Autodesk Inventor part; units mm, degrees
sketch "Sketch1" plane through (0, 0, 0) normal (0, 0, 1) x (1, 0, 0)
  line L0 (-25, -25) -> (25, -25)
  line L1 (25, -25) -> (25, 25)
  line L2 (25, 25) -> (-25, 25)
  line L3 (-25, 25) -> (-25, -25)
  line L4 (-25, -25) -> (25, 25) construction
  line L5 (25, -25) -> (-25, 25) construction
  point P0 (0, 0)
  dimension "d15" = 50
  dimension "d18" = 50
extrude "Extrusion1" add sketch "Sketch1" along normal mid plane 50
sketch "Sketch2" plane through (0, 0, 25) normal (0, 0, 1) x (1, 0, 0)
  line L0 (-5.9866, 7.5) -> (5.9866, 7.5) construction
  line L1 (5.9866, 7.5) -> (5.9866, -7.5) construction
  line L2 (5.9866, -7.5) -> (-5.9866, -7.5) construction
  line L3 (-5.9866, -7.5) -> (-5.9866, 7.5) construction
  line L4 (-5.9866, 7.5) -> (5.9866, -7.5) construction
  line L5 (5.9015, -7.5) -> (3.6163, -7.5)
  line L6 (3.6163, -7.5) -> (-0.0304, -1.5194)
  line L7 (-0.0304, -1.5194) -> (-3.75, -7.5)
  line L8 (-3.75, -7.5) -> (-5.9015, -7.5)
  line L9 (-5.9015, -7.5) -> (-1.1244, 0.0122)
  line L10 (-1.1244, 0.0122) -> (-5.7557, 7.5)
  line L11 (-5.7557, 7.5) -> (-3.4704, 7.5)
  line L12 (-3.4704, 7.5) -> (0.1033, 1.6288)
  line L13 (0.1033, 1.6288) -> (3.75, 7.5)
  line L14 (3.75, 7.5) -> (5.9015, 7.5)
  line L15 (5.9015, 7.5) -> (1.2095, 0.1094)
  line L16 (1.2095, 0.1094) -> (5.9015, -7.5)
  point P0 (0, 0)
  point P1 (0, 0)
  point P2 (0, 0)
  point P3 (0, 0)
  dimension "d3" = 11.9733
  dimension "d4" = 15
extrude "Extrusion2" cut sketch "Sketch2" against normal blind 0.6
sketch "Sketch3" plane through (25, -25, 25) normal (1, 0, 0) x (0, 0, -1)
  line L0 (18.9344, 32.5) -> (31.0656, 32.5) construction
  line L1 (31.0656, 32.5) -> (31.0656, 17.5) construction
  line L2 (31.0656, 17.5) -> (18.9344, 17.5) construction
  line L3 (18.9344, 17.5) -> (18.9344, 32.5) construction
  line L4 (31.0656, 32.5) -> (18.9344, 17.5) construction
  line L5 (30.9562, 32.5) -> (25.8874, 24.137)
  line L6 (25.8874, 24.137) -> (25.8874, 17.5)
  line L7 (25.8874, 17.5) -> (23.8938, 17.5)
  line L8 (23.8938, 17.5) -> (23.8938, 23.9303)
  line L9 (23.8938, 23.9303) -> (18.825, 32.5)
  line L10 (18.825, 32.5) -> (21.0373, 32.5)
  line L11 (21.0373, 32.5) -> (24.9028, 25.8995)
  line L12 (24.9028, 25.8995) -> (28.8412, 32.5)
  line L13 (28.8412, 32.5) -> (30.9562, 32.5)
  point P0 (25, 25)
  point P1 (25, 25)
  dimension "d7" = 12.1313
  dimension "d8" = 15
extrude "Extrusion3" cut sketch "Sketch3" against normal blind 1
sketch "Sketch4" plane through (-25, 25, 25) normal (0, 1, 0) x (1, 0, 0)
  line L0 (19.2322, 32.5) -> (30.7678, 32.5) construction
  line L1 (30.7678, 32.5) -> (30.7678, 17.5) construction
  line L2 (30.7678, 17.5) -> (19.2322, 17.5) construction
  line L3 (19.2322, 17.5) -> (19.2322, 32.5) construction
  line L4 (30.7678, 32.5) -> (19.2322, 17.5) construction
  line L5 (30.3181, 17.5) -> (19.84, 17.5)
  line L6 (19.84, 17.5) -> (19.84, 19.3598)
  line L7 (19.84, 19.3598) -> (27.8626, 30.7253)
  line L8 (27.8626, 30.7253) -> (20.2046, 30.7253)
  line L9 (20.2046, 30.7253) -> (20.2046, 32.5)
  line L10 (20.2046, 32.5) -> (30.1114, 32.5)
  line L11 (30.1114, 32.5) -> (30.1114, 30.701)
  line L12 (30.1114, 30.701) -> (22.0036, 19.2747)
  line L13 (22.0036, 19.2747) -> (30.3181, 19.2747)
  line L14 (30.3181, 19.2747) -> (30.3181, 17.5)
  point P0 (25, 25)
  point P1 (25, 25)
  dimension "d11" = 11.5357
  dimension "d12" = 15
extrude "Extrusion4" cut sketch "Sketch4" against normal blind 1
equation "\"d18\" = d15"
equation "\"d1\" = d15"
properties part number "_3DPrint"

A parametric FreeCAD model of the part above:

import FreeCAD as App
import Part
import Sketcher

V = App.Vector
Q = App.Units.Quantity


def add_polygon(sketch, points):
    """Adds a closed chain of lines whose ends are joined by coincident constraints."""
    first, n = sketch.GeometryCount, len(points)
    for a, b in zip(points, points[1:] + points[:1]):
        sketch.addGeometry(Part.LineSegment(App.Vector(*a, 0), App.Vector(*b, 0)), False)
    for i in range(n):
        sketch.addConstraint(Sketcher.Constraint("Coincident", first + i, 2, first + (i + 1) % n, 1))

doc = App.newDocument("Part")
body = doc.addObject("PartDesign::Body", "Body")

# Sketch on XY plane
sketch1 = body.newObject("Sketcher::SketchObject", "Sketch")
sketch1.AttachmentSupport = (doc.getObject("XY_Plane"), [""])
sketch1.MapMode = "FlatFace"
add_polygon(sketch1, [(-25, 25), (-25, -25), (25, -25), (25, 25)])  # lines 0-3
sketch1.addConstraint([
    Sketcher.Constraint("Vertical", 0),
    Sketcher.Constraint("Horizontal", 1),
    Sketcher.Constraint("Vertical", 2),
    Sketcher.Constraint("Horizontal", 3),
    Sketcher.Constraint("Symmetric", 0, 2, 2, 2, -1, 1),
    Sketcher.Constraint("Equal", 3, 0),
    Sketcher.Constraint("DistanceX", 1, 1, 1, 2, Q("50 mm")),
])
pad1 = body.newObject("PartDesign::Pad", "Pad")
pad1.Profile = sketch1
pad1.Length = 50
pad1.Midplane = True

# Sketch on XY plane
sketch2 = body.newObject("Sketcher::SketchObject", "Sketch001")
sketch2.AttachmentSupport = (doc.getObject("XY_Plane"), [""])
sketch2.MapMode = "FlatFace"
sketch2.AttachmentOffset = App.Placement(V(0, 0, 25), App.Rotation())
add_polygon(sketch2, [(3.6, -7.5), (5.9, -7.5), (1.2, 0.1), (5.9, 7.5), (3.8, 7.5), (0.1, 1.6), (-3.5, 7.5), (-5.8, 7.5), (-1.1, 0), (-5.9, -7.5), (-3.8, -7.5), (0, -1.5)])  # lines 0-11
sketch2.addConstraint([
    Sketcher.Constraint("Horizontal", 0),
    Sketcher.Constraint("Horizontal", 3),
    Sketcher.Constraint("Horizontal", 6),
    Sketcher.Constraint("Horizontal", 9),
    Sketcher.Constraint("Symmetric", 2, 2, 8, 2, -1, 1),
    Sketcher.Constraint("Symmetric", 0, 2, 8, 2, -2),
    Sketcher.Constraint("Horizontal", 3, 2, 5, 2),
    Sketcher.Constraint("Equal", 0, 6),
    Sketcher.Constraint("Equal", 3, 9),
    Sketcher.Constraint("DistanceY", 0, 2, 2, 2, Q("15 mm")),
    Sketcher.Constraint("Angle", 2, Q("57.5901 deg")),
    Sketcher.Constraint("Angle", 10, Q("58.1207 deg")),
    Sketcher.Constraint("DistanceX", -1, 1, 3, 2, Q("3.75 mm")),
    Sketcher.Constraint("DistanceX", 5, 2, 1, 2, Q("4.68 mm")),
    Sketcher.Constraint("DistanceX", 10, 2, 1, 2, Q("1.24 mm")),
    Sketcher.Constraint("Distance", 10, Q("7.043 mm")),
    Sketcher.Constraint("DistanceX", 0, 1, 0, 2, Q("2.2852 mm")),
    Sketcher.Constraint("DistanceX", 3, 2, 3, 1, Q("2.1515 mm")),
    Sketcher.Constraint("DistanceX", 6, 2, 4, 2, Q("5.859 mm")),
    Sketcher.Constraint("DistanceX", 7, 2, 1, 2, Q("2.334 mm")),
    Sketcher.Constraint("Distance", 4, Q("6.9115 mm")),
    Sketcher.Constraint("Distance", 7, Q("8.8043 mm")),
])
pocket1 = body.newObject("PartDesign::Pocket", "Pocket")
pocket1.Profile = sketch2
pocket1.Length = 0.6

# Sketch on YZ plane
sketch3 = body.newObject("Sketcher::SketchObject", "Sketch002")
sketch3.AttachmentSupport = (doc.getObject("YZ_Plane"), [""])
sketch3.MapMode = "FlatFace"
sketch3.AttachmentOffset = App.Placement(V(0, 0, 25), App.Rotation())
add_polygon(sketch3, [(-0.9, -0.9), (7.5, -6), (7.5, -3.8), (0.9, 0.1), (7.5, 4), (7.5, 6.2), (-1.1, 1.1), (-7.5, 1.1), (-7.5, -0.9)])  # lines 0-8
sketch3.addConstraint([
    Sketcher.Constraint("Vertical", 1),
    Sketcher.Constraint("Vertical", 4),
    Sketcher.Constraint("Horizontal", 6),
    Sketcher.Constraint("Vertical", 7),
    Sketcher.Constraint("Horizontal", 8),
    Sketcher.Constraint("Vertical", 1, 2, 3, 2),
    Sketcher.Constraint("DistanceX", 6, 2, 3, 2, Q("15 mm")),
    Sketcher.Constraint("DistanceX", -1, 1, 0, 2, Q("7.5 mm")),
    Sketcher.Constraint("Angle", 0, Q("-31.22 deg")),
    Sketcher.Constraint("DistanceY", 0, 2, 4, 2, Q("12.1312 mm")),
    Sketcher.Constraint("DistanceX", 8, 1, 8, 2, Q("6.637 mm")),
    Sketcher.Constraint("DistanceY", 1, 1, 1, 2, Q("2.115 mm")),
    Sketcher.Constraint("DistanceY", 7, 2, 3, 2, Q("4.85 mm")),
    Sketcher.Constraint("Distance", 3, Q("7.649 mm")),
    Sketcher.Constraint("DistanceX", 6, 2, 6, 1, Q("6.4303 mm")),
    Sketcher.Constraint("DistanceY", 7, 2, 7, 1, Q("1.9936 mm")),
    Sketcher.Constraint("DistanceY", -1, 1, 4, 2, Q("6.175 mm")),
    Sketcher.Constraint("DistanceY", 2, 2, 5, 2, Q("1.009 mm")),
])
pocket2 = body.newObject("PartDesign::Pocket", "Pocket001")
pocket2.Profile = sketch3
pocket2.Length = 1

# Sketch on XZ plane
sketch4 = body.newObject("Sketcher::SketchObject", "Sketch003")
sketch4.AttachmentSupport = (doc.getObject("XZ_Plane"), [""])
sketch4.MapMode = "FlatFace"
sketch4.AttachmentOffset = App.Placement(V(0, 0, -25), App.Rotation())
add_polygon(sketch4, [(-5.2, 7.5), (5.3, 7.5), (5.3, 5.7), (-3, 5.7), (5.1, -5.7), (5.1, -7.5), (-4.8, -7.5), (-4.8, -5.7), (2.9, -5.7), (-5.2, 5.6)])  # lines 0-9
sketch4.addConstraint([
    Sketcher.Constraint("Horizontal", 0),
    Sketcher.Constraint("Vertical", 1),
    Sketcher.Constraint("Horizontal", 2),
    Sketcher.Constraint("Vertical", 4),
    Sketcher.Constraint("Horizontal", 5),
    Sketcher.Constraint("Vertical", 6),
    Sketcher.Constraint("Horizontal", 7),
    Sketcher.Constraint("Vertical", 9),
    Sketcher.Constraint("Equal", 1, 6),
    Sketcher.Constraint("DistanceY", 4, 2, 0, 2, Q("15 mm")),
    Sketcher.Constraint("DistanceY", -1, 1, 0, 2, Q("7.5 mm")),
    Sketcher.Constraint("DistanceX", 0, 1, 0, 2, Q("10.478 mm")),
    Sketcher.Constraint("DistanceX", 7, 1, 7, 2, Q("7.658 mm")),
    Sketcher.Constraint("DistanceY", 4, 2, 4, 1, Q("1.799 mm")),
    Sketcher.Constraint("DistanceX", 8, 2, -1, 1, Q("5.16 mm")),
    Sketcher.Constraint("DistanceX", 2, 2, 2, 1, Q("8.3145 mm")),
    Sketcher.Constraint("DistanceX", 5, 2, 5, 1, Q("9.9068 mm")),
    Sketcher.Constraint("DistanceY", 1, 2, 1, 1, Q("1.7747 mm")),
    Sketcher.Constraint("DistanceY", 9, 1, 9, 2, Q("1.8598 mm")),
    Sketcher.Constraint("DistanceX", 5, 2, 2, 2, Q("1.799 mm")),
])
pocket3 = body.newObject("PartDesign::Pocket", "Pocket002")
pocket3.Profile = sketch4
pocket3.Length = 1
pocket3.Reversed = True

doc.recompute()
